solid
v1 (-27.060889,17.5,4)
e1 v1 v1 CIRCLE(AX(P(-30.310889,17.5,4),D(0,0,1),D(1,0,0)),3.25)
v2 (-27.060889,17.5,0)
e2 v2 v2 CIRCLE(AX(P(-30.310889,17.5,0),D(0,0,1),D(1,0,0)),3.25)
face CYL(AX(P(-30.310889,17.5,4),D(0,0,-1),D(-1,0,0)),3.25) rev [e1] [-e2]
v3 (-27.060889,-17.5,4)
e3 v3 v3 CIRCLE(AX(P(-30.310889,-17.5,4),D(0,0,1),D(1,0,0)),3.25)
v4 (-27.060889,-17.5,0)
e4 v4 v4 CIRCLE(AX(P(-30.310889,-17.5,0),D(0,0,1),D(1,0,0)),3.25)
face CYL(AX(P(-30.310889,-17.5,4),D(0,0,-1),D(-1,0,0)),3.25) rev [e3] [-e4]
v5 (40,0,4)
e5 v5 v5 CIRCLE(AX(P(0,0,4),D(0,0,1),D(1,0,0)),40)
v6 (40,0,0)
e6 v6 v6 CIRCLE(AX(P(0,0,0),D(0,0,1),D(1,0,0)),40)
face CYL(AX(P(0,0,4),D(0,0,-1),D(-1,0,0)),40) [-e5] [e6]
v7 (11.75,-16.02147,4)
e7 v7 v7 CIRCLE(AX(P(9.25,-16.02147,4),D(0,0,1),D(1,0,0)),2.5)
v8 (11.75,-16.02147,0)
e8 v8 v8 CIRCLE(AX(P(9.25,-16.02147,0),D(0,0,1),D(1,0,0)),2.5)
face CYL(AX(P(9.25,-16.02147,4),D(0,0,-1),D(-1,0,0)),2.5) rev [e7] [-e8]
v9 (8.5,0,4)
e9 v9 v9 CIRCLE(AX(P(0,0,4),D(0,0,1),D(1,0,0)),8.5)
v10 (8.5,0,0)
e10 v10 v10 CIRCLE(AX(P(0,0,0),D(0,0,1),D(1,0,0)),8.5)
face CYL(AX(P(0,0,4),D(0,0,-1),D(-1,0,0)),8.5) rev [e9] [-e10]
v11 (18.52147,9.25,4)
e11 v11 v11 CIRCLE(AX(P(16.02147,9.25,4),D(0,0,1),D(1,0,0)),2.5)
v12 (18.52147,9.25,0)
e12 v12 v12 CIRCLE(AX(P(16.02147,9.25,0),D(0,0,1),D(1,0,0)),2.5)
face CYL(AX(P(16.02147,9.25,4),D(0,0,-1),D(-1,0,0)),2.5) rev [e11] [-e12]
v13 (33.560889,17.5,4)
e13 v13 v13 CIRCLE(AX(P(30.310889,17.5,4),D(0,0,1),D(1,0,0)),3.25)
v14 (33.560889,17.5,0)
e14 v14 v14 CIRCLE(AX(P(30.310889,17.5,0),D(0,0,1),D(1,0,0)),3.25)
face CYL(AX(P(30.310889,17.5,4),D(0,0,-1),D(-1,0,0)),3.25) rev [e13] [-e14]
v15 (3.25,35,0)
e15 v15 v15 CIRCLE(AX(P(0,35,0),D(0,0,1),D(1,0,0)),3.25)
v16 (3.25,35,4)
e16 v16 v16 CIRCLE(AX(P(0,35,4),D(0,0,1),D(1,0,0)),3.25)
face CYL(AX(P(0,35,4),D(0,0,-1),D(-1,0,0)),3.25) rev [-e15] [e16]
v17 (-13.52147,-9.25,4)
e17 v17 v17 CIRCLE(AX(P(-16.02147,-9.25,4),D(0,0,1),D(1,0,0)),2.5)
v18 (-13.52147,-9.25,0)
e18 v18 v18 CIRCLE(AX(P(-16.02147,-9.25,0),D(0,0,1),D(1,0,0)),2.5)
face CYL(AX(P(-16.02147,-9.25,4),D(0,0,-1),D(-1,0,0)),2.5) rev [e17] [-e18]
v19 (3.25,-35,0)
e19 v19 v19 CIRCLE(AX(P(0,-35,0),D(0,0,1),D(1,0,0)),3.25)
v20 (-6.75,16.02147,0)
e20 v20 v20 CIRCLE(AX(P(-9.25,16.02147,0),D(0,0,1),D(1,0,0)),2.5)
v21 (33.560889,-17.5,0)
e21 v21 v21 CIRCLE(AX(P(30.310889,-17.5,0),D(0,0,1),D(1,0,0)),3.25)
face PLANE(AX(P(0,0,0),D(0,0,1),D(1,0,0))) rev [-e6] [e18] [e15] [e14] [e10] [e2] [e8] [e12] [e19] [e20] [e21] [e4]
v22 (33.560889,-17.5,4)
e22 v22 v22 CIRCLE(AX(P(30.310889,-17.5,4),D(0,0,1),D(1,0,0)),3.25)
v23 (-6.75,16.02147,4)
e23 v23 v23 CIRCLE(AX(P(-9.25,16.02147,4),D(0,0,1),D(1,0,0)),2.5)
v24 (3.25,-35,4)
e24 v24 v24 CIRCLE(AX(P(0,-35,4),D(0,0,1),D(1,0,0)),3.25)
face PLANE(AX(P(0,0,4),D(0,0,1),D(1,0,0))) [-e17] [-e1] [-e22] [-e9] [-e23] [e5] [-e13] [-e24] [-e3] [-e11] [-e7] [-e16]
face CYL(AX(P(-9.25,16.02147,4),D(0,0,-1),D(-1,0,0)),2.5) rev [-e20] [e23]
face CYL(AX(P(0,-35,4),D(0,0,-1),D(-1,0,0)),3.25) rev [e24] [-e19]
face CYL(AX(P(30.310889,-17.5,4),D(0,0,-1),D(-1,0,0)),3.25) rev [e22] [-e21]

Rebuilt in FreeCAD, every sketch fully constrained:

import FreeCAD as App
import Part
import Sketcher
from FreeCAD import Vector
Q = App.Units.Quantity

doc = App.newDocument("Part")
body = doc.addObject("PartDesign::Body", "Body")

sketch1 = body.newObject("Sketcher::SketchObject", "Sketch")
sketch1.AttachmentSupport = (doc.getObject("XY_Plane"), [""])
sketch1.MapMode = "FlatFace"
sketch1.addGeometry([
    Part.Circle(Vector(0, 0, 0), Vector(0, 0, 1), 40),
    Part.Circle(Vector(-30.310889, -17.5, 0), Vector(0, 0, 1), 3.25),
    Part.Circle(Vector(-16.02147, -9.25, 0), Vector(0, 0, 1), 2.5),
    Part.Circle(Vector(0, -35, 0), Vector(0, 0, 1), 3.25),
    Part.Circle(Vector(9.25, -16.02147, 0), Vector(0, 0, 1), 2.5),
    Part.Circle(Vector(30.310889, -17.5, 0), Vector(0, 0, 1), 3.25),
    Part.Circle(Vector(-30.310889, 17.5, 0), Vector(0, 0, 1), 3.25),
    Part.Circle(Vector(-9.25, 16.02147, 0), Vector(0, 0, 1), 2.5),
    Part.Circle(Vector(0, 0, 0), Vector(0, 0, 1), 8.5),
    Part.Circle(Vector(16.02147, 9.25, 0), Vector(0, 0, 1), 2.5),
    Part.Circle(Vector(30.310889, 17.5, 0), Vector(0, 0, 1), 3.25),
    Part.Circle(Vector(0, 35, 0), Vector(0, 0, 1), 3.25),
], False)
sketch1.addConstraint([
    Sketcher.Constraint("Coincident", 0, 3, -1, 1),
    Sketcher.Constraint("Coincident", 8, 3, -1, 1),
    Sketcher.Constraint("Equal", 1, 3),
    Sketcher.Constraint("Equal", 2, 4),
    Sketcher.Constraint("Equal", 3, 5),
    Sketcher.Constraint("Equal", 5, 6),
    Sketcher.Constraint("Equal", 4, 7),
    Sketcher.Constraint("Equal", 7, 9),
    Sketcher.Constraint("Equal", 6, 10),
    Sketcher.Constraint("Equal", 10, 11),
    Sketcher.Constraint("Symmetric", 5, 3, 6, 3, -1, 1),
    Sketcher.Constraint("Symmetric", 4, 3, 7, 3, -1, 1),
    Sketcher.Constraint("Symmetric", 2, 3, 9, 3, -1, 1),
    Sketcher.Constraint("Symmetric", 1, 3, 10, 3, -1, 1),
    Sketcher.Constraint("Symmetric", 3, 3, 11, 3, -1, 1),
    Sketcher.Constraint("Symmetric", 1, 3, 5, 3, -2),
    Sketcher.Constraint("PointOnObject", 3, 3, -2),
    Sketcher.Constraint("Diameter", 0, Q("80 mm")),
    Sketcher.Constraint("Diameter", 2, Q("5 mm")),
    Sketcher.Constraint("Diameter", 8, Q("17 mm")),
    Sketcher.Constraint("Diameter", 1, Q("6.5 mm")),
    Sketcher.Constraint("DistanceY", 3, 3, -1, 1, Q("35 mm")),
    Sketcher.Constraint("DistanceY", 1, 3, 6, 3, Q("35 mm")),
    Sketcher.Constraint("DistanceX", 7, 3, 4, 3, Q("18.5 mm")),
    Sketcher.Constraint("DistanceY", 2, 3, -1, 1, Q("9.25 mm")),
    Sketcher.Constraint("DistanceX", 1, 3, -1, 1, Q("30.310889 mm")),
    Sketcher.Constraint("DistanceX", 2, 3, -1, 1, Q("16.02147 mm")),
    Sketcher.Constraint("DistanceY", 4, 3, -1, 1, Q("16.02147 mm")),
])
pad1 = body.newObject("PartDesign::Pad", "Pad")
pad1.Profile = sketch1
pad1.Length = 4

doc.recompute()
